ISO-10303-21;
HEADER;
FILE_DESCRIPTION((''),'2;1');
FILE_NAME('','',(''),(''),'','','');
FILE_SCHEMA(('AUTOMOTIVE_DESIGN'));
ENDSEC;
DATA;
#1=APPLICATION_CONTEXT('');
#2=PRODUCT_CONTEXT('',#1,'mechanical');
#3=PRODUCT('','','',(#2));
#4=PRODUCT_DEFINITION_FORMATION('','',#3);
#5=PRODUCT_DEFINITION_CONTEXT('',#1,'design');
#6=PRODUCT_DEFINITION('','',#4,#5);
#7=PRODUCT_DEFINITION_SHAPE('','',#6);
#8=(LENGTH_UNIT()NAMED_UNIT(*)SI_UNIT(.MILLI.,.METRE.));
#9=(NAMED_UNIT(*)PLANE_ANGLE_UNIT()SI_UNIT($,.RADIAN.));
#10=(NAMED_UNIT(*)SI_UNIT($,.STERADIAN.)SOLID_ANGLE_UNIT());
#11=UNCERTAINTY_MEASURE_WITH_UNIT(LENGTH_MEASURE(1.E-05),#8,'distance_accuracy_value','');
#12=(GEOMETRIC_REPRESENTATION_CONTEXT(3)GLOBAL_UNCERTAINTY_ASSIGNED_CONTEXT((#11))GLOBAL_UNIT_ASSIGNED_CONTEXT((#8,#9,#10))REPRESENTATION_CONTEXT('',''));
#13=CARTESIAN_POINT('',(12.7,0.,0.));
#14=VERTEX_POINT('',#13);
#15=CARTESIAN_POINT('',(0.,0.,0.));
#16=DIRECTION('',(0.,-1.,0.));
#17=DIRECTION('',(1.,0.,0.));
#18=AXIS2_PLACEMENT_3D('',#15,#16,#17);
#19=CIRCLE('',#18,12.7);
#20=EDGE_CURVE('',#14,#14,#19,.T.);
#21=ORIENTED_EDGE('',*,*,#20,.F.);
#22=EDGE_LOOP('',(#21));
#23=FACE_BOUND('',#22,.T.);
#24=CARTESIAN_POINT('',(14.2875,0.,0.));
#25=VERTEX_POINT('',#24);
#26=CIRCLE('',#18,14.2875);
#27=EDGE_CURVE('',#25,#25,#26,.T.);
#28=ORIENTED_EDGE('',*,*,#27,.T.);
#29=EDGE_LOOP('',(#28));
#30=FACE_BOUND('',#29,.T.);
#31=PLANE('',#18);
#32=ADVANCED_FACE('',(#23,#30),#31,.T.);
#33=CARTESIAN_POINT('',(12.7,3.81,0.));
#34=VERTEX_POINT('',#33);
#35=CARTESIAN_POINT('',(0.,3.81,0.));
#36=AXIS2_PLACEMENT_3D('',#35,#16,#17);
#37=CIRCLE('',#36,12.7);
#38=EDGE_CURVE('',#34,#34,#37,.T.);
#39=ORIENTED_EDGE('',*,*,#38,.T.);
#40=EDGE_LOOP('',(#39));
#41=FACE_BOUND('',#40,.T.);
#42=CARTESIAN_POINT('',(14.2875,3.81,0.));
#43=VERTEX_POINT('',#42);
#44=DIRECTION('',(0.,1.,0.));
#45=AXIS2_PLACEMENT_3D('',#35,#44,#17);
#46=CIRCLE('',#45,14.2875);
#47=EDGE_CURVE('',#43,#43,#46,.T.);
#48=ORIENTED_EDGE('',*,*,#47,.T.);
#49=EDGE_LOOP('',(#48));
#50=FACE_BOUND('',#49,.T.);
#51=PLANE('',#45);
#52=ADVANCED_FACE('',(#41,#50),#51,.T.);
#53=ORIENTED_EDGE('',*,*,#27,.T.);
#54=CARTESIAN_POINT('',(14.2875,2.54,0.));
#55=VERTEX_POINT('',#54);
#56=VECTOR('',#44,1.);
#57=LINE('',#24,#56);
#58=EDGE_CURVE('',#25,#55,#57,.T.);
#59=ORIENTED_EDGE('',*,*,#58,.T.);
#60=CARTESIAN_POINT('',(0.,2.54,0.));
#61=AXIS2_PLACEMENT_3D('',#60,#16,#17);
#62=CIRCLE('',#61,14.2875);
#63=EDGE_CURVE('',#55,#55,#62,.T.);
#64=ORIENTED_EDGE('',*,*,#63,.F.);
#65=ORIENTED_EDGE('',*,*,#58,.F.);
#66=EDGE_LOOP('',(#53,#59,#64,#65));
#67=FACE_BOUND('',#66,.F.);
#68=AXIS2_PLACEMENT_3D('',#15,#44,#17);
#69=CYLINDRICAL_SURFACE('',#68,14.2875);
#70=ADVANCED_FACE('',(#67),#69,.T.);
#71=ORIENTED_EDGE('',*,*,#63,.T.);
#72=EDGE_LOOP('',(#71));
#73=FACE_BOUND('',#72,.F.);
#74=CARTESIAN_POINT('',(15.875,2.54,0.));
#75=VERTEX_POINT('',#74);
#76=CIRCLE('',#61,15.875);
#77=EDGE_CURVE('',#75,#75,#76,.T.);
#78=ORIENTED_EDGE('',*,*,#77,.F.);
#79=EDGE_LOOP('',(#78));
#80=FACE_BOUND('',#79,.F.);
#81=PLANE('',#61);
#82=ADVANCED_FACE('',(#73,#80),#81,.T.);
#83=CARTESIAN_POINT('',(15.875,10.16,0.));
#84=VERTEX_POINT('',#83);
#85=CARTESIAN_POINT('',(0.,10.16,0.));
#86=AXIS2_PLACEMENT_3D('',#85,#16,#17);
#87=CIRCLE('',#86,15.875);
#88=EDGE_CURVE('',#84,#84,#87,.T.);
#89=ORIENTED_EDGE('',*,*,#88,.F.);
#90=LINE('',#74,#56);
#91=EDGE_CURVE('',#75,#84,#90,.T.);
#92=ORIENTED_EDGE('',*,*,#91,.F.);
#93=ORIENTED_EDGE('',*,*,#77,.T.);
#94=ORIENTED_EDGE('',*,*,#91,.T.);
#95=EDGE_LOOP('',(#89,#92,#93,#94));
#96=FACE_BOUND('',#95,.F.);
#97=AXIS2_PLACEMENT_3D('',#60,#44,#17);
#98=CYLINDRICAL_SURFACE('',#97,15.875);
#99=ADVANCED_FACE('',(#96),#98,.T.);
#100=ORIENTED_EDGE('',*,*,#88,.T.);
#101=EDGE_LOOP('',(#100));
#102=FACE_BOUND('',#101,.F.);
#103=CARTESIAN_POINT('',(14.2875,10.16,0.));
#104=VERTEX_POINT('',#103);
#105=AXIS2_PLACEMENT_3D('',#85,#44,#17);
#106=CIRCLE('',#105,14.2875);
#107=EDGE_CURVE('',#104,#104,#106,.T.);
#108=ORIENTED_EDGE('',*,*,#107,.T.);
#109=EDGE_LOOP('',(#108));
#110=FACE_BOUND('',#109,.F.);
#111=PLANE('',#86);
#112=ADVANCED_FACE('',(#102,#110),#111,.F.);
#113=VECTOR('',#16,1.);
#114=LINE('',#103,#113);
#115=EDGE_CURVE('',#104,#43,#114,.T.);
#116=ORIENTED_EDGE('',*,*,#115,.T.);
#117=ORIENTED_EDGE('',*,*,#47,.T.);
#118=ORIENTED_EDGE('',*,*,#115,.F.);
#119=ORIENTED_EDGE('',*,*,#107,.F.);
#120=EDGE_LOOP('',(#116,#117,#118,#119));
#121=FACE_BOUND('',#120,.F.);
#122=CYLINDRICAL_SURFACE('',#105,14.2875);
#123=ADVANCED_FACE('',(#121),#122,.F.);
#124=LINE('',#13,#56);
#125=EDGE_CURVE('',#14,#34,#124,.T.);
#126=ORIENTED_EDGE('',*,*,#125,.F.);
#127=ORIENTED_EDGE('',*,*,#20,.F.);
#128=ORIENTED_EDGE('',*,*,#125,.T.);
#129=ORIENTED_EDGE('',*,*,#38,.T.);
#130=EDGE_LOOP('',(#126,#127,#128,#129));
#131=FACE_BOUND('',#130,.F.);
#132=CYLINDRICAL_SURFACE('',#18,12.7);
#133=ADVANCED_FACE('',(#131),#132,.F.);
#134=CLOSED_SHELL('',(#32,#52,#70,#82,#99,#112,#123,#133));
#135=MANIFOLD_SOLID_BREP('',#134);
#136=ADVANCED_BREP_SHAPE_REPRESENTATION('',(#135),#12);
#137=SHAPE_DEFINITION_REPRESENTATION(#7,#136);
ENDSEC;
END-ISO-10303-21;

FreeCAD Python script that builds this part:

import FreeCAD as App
import Part
import Sketcher
from FreeCAD import Vector
Q = App.Units.Quantity

doc = App.newDocument("Part")
params = doc.addObject("Spreadsheet::Sheet", "Params")
for row, (alias, value) in enumerate([
    ("sketch1_height", "0.1 in"),
    ("sketch1_height2", "0.3 in"),
    ("sketch1_width", "0.5625 in"),
    ("sketch1_width2", "0.625 in"),
    ("revolution_angle", "360 deg"),
    ("sketch2_diameter", "1.125 in"),
    ("pocket1_length", "0.25 in"),
    ("sketch3_diameter", "1 in"),
], start=1):
    params.set(f"A{row}", alias)
    params.set(f"B{row}", "=" + value)
    params.setAlias(f"B{row}", alias)

body = doc.addObject("PartDesign::Body", "Body")

sketch1 = body.newObject("Sketcher::SketchObject", "Sketch")
sketch1.AttachmentSupport = (doc.getObject("XY_Plane"), [""])
sketch1.MapMode = "FlatFace"
sketch1.addGeometry([
    Part.LineSegment(Vector(0, 0, 0), Vector(14.3, 0, 0)),
    Part.LineSegment(Vector(14.3, 0, 0), Vector(14.3, 2.5, 0)),
    Part.LineSegment(Vector(14.3, 2.5, 0), Vector(15.9, 2.5, 0)),
    Part.LineSegment(Vector(15.9, 2.5, 0), Vector(15.9, 10.2, 0)),
    Part.LineSegment(Vector(15.9, 10.2, 0), Vector(0, 10.2, 0)),
    Part.LineSegment(Vector(0, 10.2, 0), Vector(0, 0, 0)),
], False)
sketch1.addConstraint([
    Sketcher.Constraint("Coincident", 0, 2, 1, 1),
    Sketcher.Constraint("Coincident", 1, 2, 2, 1),
    Sketcher.Constraint("Coincident", 2, 2, 3, 1),
    Sketcher.Constraint("Coincident", 3, 2, 4, 1),
    Sketcher.Constraint("Coincident", 4, 2, 5, 1),
    Sketcher.Constraint("Coincident", 5, 2, 0, 1),
    Sketcher.Constraint("Horizontal", 0),
    Sketcher.Constraint("Vertical", 1),
    Sketcher.Constraint("Horizontal", 2),
    Sketcher.Constraint("Vertical", 3),
    Sketcher.Constraint("Horizontal", 4),
    Sketcher.Constraint("Vertical", 5),
    Sketcher.Constraint("Coincident", 5, 2, -1, 1),
    Sketcher.Constraint("DistanceY", 1, 1, 1, 2, Q("0.1 in")),
    Sketcher.Constraint("DistanceY", 3, 1, 3, 2, Q("0.3 in")),
    Sketcher.Constraint("DistanceX", 0, 1, 0, 2, Q("0.5625 in")),
    Sketcher.Constraint("DistanceX", 4, 2, 4, 1, Q("0.625 in")),
])
sketch1.setExpression("Constraints[13]", "Params.sketch1_height")
sketch1.setExpression("Constraints[14]", "Params.sketch1_height2")
sketch1.setExpression("Constraints[15]", "Params.sketch1_width")
sketch1.setExpression("Constraints[16]", "Params.sketch1_width2")
revolution = body.newObject("PartDesign::Revolution", "Revolution")
revolution.Profile = sketch1
revolution.ReferenceAxis = (sketch1, ["V_Axis"])
revolution.setExpression("Angle", "Params.revolution_angle")

sketch2 = body.newObject("Sketcher::SketchObject", "Sketch001")
sketch2.AttachmentSupport = (doc.getObject("XZ_Plane"), [""])
sketch2.MapMode = "FlatFace"
sketch2.AttachmentOffset = App.Placement(Vector(0, 0, -0.4 * 25.4), App.Rotation())
sketch2.addGeometry(Part.Circle(Vector(0, 0, 0), Vector(0, 0, 1), 14), False)
sketch2.addConstraint([
    Sketcher.Constraint("Coincident", 0, 3, -1, 1),
    Sketcher.Constraint("Diameter", 0, Q("1.125 in")),
])
sketch2.setExpression("Constraints[1]", "Params.sketch2_diameter")
pocket1 = body.newObject("PartDesign::Pocket", "Pocket")
pocket1.Profile = sketch2
pocket1.setExpression("Length", "Params.pocket1_length")
pocket1.Reversed = True

sketch3 = body.newObject("Sketcher::SketchObject", "Sketch002")
sketch3.AttachmentSupport = (doc.getObject("XZ_Plane"), [""])
sketch3.MapMode = "FlatFace"
sketch3.addGeometry(Part.Circle(Vector(0, 0, 0), Vector(0, 0, 1), 13), False)
sketch3.addConstraint([
    Sketcher.Constraint("Coincident", 0, 3, -1, 1),
    Sketcher.Constraint("Diameter", 0, Q("1 in")),
])
sketch3.setExpression("Constraints[1]", "Params.sketch3_diameter")
pocket2 = body.newObject("PartDesign::Pocket", "Pocket001")
pocket2.Profile = sketch3
pocket2.Type = "UpToFirst"

doc.recompute()
